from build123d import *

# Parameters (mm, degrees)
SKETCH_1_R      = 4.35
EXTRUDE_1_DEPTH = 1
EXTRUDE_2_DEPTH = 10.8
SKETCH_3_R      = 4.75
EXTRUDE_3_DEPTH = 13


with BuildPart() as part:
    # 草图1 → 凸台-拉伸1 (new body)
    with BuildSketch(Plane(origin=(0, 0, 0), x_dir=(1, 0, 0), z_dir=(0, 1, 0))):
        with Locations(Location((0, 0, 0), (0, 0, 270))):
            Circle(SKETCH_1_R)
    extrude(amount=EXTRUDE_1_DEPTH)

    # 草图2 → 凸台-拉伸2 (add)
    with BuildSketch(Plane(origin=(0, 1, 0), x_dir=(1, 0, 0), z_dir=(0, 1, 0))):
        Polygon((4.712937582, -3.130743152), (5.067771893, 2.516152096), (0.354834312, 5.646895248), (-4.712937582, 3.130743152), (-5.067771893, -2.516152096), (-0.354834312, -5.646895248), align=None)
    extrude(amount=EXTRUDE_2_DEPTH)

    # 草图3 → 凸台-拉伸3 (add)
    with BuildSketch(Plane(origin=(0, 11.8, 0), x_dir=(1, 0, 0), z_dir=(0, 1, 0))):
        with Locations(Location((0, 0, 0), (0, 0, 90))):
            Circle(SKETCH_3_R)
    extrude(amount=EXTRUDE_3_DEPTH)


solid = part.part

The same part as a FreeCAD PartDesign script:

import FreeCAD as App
import Part
import Sketcher
from FreeCAD import Vector

doc = App.newDocument("Part")
params = doc.addObject("Spreadsheet::Sheet", "Params")
for row, (alias, value) in enumerate([
    ("sketch1_diameter", "8.7 mm"),
    ("pad1_length", "1 mm"),
    ("pad2_length", "10.8 mm"),
    ("sketch3_diameter", "9.5 mm"),
    ("pad3_length", "13 mm"),
], start=1):
    params.set(f"A{row}", alias)
    params.set(f"B{row}", "=" + value)
    params.setAlias(f"B{row}", alias)

body = doc.addObject("PartDesign::Body", "Body")

sketch1 = doc.addObject("Sketcher::SketchObject", "Sketch")
body.addObject(sketch1)
sketch1.AttachmentSupport = (doc.XZ_Plane, [""])
sketch1.MapMode = "FlatFace"
sketch1.addGeometry(Part.Circle(Vector(0, 0, 0), Vector(0, 0, 1), 4.3), False)
sketch1.addConstraint(Sketcher.Constraint("Coincident", 0, 3, -1, 1))
sketch1.addConstraint(Sketcher.Constraint("Diameter", 0, 8.7))
sketch1.setExpression("Constraints[1]", "Params.sketch1_diameter")
pad1 = doc.addObject("PartDesign::Pad", "Pad")
body.addObject(pad1)
pad1.Profile = sketch1
pad1.setExpression("Length", "Params.pad1_length")
pad1.Reversed = True

sketch2 = doc.addObject("Sketcher::SketchObject", "Sketch001")
body.addObject(sketch2)
sketch2.AttachmentSupport = (doc.XZ_Plane, [""])
sketch2.MapMode = "FlatFace"
sketch2.AttachmentOffset = App.Placement(Vector(0, 0, -1), App.Rotation())
sketch2.addGeometry(Part.LineSegment(Vector(5, 3, 0), Vector(5, -3, 0)), False)
sketch2.addGeometry(Part.LineSegment(Vector(5, -3, 0), Vector(0, -6, 0)), False)
sketch2.addGeometry(Part.LineSegment(Vector(0, -6, 0), Vector(-5, -3, 0)), False)
sketch2.addGeometry(Part.LineSegment(Vector(-5, -3, 0), Vector(-5, 3, 0)), False)
sketch2.addGeometry(Part.LineSegment(Vector(-5, 3, 0), Vector(0, 6, 0)), False)
sketch2.addGeometry(Part.LineSegment(Vector(0, 6, 0), Vector(5, 3, 0)), False)
sketch2.addConstraint(Sketcher.Constraint("Coincident", 0, 2, 1, 1))
sketch2.addConstraint(Sketcher.Constraint("Coincident", 1, 2, 2, 1))
sketch2.addConstraint(Sketcher.Constraint("Coincident", 2, 2, 3, 1))
sketch2.addConstraint(Sketcher.Constraint("Coincident", 3, 2, 4, 1))
sketch2.addConstraint(Sketcher.Constraint("Coincident", 4, 2, 5, 1))
sketch2.addConstraint(Sketcher.Constraint("Coincident", 5, 2, 0, 1))
sketch2.addConstraint(Sketcher.Constraint("Symmetric", 0, 2, 3, 2, -1, 1))
sketch2.addConstraint(Sketcher.Constraint("Symmetric", 1, 2, 4, 2, -1, 1))
sketch2.addConstraint(Sketcher.Constraint("Symmetric", 2, 2, 5, 2, -1, 1))
sketch2.addConstraint(Sketcher.Constraint("Equal", 0, 1))
sketch2.addConstraint(Sketcher.Constraint("Equal", 1, 2))
sketch2.addConstraint(Sketcher.Constraint("DistanceX", -1, 1, 0, 2, 5.067772))
sketch2.addConstraint(Sketcher.Constraint("DistanceX", 2, 2, 1, 2, 5.067772))
sketch2.addConstraint(Sketcher.Constraint("DistanceX", 2, 2, 0, 2, 9.780709))
sketch2.addConstraint(Sketcher.Constraint("DistanceY", 2, 2, 0, 2, 0.614591))
pad2 = doc.addObject("PartDesign::Pad", "Pad001")
body.addObject(pad2)
pad2.Profile = sketch2
pad2.setExpression("Length", "Params.pad2_length")
pad2.Reversed = True

sketch3 = doc.addObject("Sketcher::SketchObject", "Sketch002")
body.addObject(sketch3)
sketch3.AttachmentSupport = (doc.XZ_Plane, [""])
sketch3.MapMode = "FlatFace"
sketch3.AttachmentOffset = App.Placement(Vector(0, 0, -11.8), App.Rotation())
sketch3.addGeometry(Part.Circle(Vector(0, 0, 0), Vector(0, 0, 1), 4.8), False)
sketch3.addConstraint(Sketcher.Constraint("Coincident", 0, 3, -1, 1))
sketch3.addConstraint(Sketcher.Constraint("Diameter", 0, 9.5))
sketch3.setExpression("Constraints[1]", "Params.sketch3_diameter")
pad3 = doc.addObject("PartDesign::Pad", "Pad002")
body.addObject(pad3)
pad3.Profile = sketch3
pad3.setExpression("Length", "Params.pad3_length")
pad3.Reversed = True

doc.recompute()
